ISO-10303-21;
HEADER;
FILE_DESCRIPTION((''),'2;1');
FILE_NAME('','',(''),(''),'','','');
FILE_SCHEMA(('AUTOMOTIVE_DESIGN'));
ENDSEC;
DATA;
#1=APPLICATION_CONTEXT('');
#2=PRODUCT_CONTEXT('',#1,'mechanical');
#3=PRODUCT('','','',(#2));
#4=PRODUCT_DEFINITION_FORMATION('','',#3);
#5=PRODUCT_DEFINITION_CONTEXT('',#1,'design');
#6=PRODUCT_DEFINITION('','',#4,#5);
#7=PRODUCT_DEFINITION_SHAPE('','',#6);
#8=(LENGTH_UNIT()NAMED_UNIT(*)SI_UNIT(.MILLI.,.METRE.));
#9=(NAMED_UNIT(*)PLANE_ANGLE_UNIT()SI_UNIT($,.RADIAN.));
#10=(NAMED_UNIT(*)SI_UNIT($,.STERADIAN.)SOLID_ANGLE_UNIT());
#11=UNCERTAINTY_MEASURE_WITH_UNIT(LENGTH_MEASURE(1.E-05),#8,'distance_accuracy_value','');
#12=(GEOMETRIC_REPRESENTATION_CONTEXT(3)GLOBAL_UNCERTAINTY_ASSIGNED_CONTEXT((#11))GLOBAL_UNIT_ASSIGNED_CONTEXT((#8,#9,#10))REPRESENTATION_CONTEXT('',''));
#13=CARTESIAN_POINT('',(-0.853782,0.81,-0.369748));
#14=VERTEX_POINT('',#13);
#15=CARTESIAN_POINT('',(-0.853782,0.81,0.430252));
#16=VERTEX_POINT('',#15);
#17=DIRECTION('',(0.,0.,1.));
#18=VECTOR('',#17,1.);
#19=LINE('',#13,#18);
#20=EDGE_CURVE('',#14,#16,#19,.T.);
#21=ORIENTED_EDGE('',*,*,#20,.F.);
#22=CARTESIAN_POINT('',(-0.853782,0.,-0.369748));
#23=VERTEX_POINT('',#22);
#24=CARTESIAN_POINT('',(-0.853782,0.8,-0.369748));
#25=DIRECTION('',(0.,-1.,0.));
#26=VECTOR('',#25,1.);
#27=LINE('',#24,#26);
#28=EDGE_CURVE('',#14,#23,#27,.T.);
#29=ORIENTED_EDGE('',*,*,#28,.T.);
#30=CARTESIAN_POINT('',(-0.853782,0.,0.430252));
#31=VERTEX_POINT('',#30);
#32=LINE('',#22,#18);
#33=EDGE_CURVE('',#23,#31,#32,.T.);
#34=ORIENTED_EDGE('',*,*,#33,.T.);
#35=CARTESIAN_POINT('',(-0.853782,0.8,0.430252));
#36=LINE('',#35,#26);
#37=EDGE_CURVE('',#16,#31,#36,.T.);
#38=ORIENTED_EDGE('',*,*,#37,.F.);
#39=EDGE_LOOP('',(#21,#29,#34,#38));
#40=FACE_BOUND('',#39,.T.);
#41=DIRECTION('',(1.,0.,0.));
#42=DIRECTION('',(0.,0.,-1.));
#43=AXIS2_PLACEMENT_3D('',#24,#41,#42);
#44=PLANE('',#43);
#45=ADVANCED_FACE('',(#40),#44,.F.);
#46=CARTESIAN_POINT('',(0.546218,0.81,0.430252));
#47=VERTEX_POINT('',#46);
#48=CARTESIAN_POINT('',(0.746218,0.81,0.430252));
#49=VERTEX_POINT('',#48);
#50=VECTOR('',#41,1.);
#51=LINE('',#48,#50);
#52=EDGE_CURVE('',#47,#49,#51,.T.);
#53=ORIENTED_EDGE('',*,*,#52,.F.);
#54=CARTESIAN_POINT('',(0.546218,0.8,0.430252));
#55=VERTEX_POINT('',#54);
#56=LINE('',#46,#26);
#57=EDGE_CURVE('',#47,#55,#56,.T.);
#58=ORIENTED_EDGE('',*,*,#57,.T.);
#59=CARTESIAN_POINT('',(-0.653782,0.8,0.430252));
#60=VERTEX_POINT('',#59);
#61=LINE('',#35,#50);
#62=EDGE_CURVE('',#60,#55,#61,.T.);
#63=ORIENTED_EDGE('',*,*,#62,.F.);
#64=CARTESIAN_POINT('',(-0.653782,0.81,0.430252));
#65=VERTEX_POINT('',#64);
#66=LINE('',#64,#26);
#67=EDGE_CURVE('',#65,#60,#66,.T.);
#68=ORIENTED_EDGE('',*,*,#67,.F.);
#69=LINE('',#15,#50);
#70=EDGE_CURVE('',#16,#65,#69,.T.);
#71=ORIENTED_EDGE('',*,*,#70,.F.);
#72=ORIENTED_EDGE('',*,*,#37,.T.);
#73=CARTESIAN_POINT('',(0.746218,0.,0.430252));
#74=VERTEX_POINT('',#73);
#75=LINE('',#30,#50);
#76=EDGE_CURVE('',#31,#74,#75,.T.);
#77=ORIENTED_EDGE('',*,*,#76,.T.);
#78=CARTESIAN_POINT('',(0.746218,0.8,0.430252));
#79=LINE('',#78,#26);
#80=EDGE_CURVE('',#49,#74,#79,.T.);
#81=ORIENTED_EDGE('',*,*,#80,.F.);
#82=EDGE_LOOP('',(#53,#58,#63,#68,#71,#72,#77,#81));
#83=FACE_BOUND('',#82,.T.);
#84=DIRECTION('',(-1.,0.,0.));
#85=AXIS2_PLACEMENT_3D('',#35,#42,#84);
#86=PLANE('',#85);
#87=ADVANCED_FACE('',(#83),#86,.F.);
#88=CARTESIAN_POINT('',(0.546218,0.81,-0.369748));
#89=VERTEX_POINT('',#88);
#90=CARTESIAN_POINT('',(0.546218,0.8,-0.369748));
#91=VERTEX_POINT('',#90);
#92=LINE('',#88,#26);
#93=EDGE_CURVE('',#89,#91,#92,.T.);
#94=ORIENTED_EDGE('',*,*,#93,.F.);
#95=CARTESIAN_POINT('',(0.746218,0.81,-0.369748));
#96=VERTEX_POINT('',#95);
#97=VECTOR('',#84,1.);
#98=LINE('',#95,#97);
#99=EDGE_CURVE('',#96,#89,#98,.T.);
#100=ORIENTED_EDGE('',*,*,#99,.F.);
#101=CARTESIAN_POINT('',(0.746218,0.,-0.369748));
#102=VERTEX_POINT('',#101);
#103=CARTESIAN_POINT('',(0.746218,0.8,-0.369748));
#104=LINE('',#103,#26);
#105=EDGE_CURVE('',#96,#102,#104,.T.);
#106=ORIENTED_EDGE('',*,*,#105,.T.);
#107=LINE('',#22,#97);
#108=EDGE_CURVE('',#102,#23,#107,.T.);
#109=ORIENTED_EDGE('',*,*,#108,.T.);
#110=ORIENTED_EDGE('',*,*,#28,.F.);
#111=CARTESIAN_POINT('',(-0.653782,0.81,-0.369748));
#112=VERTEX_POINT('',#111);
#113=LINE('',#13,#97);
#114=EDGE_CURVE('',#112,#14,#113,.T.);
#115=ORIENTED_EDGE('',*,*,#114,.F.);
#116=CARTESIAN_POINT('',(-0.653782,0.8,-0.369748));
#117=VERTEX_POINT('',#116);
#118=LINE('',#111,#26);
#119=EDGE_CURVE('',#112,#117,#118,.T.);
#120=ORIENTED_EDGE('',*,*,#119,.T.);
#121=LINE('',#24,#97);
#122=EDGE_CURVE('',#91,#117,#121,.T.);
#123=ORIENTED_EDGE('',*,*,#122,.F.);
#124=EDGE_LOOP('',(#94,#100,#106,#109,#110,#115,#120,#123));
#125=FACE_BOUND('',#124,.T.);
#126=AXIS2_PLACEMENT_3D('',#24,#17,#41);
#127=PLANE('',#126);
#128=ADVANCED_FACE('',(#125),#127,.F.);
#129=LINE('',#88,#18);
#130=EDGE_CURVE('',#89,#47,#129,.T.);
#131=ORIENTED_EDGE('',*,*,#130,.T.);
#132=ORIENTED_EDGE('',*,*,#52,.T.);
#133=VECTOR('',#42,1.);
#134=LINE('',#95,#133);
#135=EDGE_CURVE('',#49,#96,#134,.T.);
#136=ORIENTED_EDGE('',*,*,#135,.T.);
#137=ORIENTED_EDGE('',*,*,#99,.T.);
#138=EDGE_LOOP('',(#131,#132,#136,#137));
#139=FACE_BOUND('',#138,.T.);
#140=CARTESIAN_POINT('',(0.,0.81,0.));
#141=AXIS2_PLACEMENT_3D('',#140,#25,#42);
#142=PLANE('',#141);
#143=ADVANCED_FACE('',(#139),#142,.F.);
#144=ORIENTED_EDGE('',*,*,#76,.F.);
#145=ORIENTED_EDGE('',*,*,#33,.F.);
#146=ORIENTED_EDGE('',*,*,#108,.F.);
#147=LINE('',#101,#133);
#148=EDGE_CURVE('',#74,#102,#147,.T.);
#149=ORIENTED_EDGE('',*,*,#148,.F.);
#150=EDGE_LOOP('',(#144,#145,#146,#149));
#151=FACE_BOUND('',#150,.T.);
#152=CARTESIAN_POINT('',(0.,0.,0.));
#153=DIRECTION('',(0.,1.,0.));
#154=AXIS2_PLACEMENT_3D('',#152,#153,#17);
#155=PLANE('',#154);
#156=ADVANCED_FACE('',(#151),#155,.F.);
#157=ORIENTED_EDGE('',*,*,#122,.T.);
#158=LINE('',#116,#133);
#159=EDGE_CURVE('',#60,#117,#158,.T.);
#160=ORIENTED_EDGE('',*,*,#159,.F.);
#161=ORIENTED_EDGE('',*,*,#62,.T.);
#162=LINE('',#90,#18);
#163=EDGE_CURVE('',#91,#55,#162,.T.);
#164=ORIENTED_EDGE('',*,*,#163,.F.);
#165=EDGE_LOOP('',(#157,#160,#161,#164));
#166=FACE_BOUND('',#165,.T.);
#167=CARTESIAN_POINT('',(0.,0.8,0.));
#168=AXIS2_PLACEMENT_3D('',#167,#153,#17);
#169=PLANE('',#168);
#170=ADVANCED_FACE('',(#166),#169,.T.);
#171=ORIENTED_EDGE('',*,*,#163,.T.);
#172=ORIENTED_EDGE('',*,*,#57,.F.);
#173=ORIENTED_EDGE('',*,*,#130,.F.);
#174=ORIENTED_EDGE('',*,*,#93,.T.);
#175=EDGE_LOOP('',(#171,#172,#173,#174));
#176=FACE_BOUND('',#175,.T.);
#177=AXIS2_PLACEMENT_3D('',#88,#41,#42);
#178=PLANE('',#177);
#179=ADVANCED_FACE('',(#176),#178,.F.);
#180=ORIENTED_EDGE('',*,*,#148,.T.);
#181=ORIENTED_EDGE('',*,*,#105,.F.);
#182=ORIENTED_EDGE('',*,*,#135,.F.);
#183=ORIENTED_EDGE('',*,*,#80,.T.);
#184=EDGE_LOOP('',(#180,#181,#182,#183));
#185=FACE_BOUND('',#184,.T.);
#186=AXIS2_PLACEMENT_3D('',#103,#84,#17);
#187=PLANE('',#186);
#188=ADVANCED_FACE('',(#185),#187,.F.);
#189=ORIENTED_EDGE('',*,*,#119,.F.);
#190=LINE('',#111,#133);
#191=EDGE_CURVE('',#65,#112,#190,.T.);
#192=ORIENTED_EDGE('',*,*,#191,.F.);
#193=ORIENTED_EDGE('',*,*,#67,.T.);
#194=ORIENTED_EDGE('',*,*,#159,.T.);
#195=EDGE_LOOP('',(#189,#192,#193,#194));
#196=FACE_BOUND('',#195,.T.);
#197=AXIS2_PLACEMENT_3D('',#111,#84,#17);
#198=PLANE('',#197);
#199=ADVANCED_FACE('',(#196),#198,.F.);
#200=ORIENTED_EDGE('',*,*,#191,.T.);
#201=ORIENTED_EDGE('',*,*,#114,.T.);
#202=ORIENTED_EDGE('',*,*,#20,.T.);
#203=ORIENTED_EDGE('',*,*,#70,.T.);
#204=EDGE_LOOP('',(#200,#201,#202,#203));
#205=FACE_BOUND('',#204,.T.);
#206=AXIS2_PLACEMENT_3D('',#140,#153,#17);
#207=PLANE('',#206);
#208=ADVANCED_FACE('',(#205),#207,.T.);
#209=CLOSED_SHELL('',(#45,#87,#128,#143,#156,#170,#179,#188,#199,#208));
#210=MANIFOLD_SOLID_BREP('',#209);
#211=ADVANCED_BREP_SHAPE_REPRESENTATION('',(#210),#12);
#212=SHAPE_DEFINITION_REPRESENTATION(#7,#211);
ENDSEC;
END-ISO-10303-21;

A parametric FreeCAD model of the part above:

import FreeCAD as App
import Part
import Sketcher
Q = App.Units.Quantity

doc = App.newDocument("Part")
body = doc.addObject("PartDesign::Body", "Body")

sketch1 = doc.addObject("Sketcher::SketchObject", "Sketch")
body.addObject(sketch1)
sketch1.AttachmentSupport = (doc.XZ_Plane, [""])
sketch1.MapMode = "FlatFace"
sketch1.addGeometry([
    Part.LineSegment(App.Vector(-0.9, -0.4, 0), App.Vector(-0.9, 0.4, 0)),
    Part.LineSegment(App.Vector(-0.9, 0.4, 0), App.Vector(0.7, 0.4, 0)),
    Part.LineSegment(App.Vector(0.7, 0.4, 0), App.Vector(0.7, -0.4, 0)),
    Part.LineSegment(App.Vector(0.7, -0.4, 0), App.Vector(-0.9, -0.4, 0)),
], False)
sketch1.addConstraint([
    Sketcher.Constraint("Coincident", 0, 2, 1, 1),
    Sketcher.Constraint("Coincident", 1, 2, 2, 1),
    Sketcher.Constraint("Coincident", 2, 2, 3, 1),
    Sketcher.Constraint("Coincident", 3, 2, 0, 1),
    Sketcher.Constraint("Vertical", 0),
    Sketcher.Constraint("Horizontal", 1),
    Sketcher.Constraint("Vertical", 2),
    Sketcher.Constraint("Horizontal", 3),
    Sketcher.Constraint("DistanceX", 1, 1, 1, 2, Q("1.6 mm")),
    Sketcher.Constraint("DistanceY", 0, 1, 0, 2, Q("0.8 mm")),
    Sketcher.Constraint("DistanceX", 0, 2, -1, 1, Q("0.853782 mm")),
    Sketcher.Constraint("DistanceY", -1, 1, 0, 2, Q("0.430252 mm")),
])
pad1 = doc.addObject("PartDesign::Pad", "Pad")
body.addObject(pad1)
pad1.Profile = sketch1
pad1.Length = 0.8
pad1.Reversed = True

sketch2 = doc.addObject("Sketcher::SketchObject", "Sketch001")
body.addObject(sketch2)
sketch2.AttachmentSupport = (doc.XZ_Plane, [""])
sketch2.MapMode = "FlatFace"
sketch2.AttachmentOffset = App.Placement(App.Vector(0, 0, -0.8), App.Rotation())
sketch2.addGeometry([
    Part.LineSegment(App.Vector(-0.85, -0.37, 0), App.Vector(-0.85, 0.43, 0)),
    Part.LineSegment(App.Vector(-0.85, 0.43, 0), App.Vector(-0.65, 0.43, 0)),
    Part.LineSegment(App.Vector(-0.65, 0.43, 0), App.Vector(-0.65, -0.37, 0)),
    Part.LineSegment(App.Vector(-0.65, -0.37, 0), App.Vector(-0.85, -0.37, 0)),
    Part.LineSegment(App.Vector(0.55, -0.37, 0), App.Vector(0.55, 0.43, 0)),
    Part.LineSegment(App.Vector(0.55, 0.43, 0), App.Vector(0.75, 0.43, 0)),
    Part.LineSegment(App.Vector(0.75, 0.43, 0), App.Vector(0.75, -0.37, 0)),
    Part.LineSegment(App.Vector(0.75, -0.37, 0), App.Vector(0.55, -0.37, 0)),
], False)
sketch2.addConstraint([
    Sketcher.Constraint("Coincident", 0, 2, 1, 1),
    Sketcher.Constraint("Coincident", 1, 2, 2, 1),
    Sketcher.Constraint("Coincident", 2, 2, 3, 1),
    Sketcher.Constraint("Coincident", 3, 2, 0, 1),
    Sketcher.Constraint("Coincident", 4, 2, 5, 1),
    Sketcher.Constraint("Coincident", 5, 2, 6, 1),
    Sketcher.Constraint("Coincident", 6, 2, 7, 1),
    Sketcher.Constraint("Coincident", 7, 2, 4, 1),
    Sketcher.Constraint("Vertical", 0),
    Sketcher.Constraint("Horizontal", 1),
    Sketcher.Constraint("Vertical", 2),
    Sketcher.Constraint("Horizontal", 3),
    Sketcher.Constraint("Vertical", 4),
    Sketcher.Constraint("Horizontal", 5),
    Sketcher.Constraint("Vertical", 6),
    Sketcher.Constraint("Horizontal", 7),
    Sketcher.Constraint("Horizontal", 1, 2, 4, 2),
    Sketcher.Constraint("Horizontal", 3, 2, 6, 2),
    Sketcher.Constraint("Equal", 3, 5),
    Sketcher.Constraint("DistanceX", 1, 1, 1, 2, Q("0.2 mm")),
    Sketcher.Constraint("DistanceY", 0, 1, 0, 2, Q("0.8 mm")),
    Sketcher.Constraint("DistanceX", 1, 2, 4, 2, Q("1.2 mm")),
    Sketcher.Constraint("DistanceX", 0, 2, -1, 1, Q("0.853782 mm")),
    Sketcher.Constraint("DistanceY", -1, 1, 0, 2, Q("0.430252 mm")),
])
pad2 = doc.addObject("PartDesign::Pad", "Pad001")
body.addObject(pad2)
pad2.Profile = sketch2
pad2.Length = 0.01
pad2.Reversed = True

doc.recompute()
